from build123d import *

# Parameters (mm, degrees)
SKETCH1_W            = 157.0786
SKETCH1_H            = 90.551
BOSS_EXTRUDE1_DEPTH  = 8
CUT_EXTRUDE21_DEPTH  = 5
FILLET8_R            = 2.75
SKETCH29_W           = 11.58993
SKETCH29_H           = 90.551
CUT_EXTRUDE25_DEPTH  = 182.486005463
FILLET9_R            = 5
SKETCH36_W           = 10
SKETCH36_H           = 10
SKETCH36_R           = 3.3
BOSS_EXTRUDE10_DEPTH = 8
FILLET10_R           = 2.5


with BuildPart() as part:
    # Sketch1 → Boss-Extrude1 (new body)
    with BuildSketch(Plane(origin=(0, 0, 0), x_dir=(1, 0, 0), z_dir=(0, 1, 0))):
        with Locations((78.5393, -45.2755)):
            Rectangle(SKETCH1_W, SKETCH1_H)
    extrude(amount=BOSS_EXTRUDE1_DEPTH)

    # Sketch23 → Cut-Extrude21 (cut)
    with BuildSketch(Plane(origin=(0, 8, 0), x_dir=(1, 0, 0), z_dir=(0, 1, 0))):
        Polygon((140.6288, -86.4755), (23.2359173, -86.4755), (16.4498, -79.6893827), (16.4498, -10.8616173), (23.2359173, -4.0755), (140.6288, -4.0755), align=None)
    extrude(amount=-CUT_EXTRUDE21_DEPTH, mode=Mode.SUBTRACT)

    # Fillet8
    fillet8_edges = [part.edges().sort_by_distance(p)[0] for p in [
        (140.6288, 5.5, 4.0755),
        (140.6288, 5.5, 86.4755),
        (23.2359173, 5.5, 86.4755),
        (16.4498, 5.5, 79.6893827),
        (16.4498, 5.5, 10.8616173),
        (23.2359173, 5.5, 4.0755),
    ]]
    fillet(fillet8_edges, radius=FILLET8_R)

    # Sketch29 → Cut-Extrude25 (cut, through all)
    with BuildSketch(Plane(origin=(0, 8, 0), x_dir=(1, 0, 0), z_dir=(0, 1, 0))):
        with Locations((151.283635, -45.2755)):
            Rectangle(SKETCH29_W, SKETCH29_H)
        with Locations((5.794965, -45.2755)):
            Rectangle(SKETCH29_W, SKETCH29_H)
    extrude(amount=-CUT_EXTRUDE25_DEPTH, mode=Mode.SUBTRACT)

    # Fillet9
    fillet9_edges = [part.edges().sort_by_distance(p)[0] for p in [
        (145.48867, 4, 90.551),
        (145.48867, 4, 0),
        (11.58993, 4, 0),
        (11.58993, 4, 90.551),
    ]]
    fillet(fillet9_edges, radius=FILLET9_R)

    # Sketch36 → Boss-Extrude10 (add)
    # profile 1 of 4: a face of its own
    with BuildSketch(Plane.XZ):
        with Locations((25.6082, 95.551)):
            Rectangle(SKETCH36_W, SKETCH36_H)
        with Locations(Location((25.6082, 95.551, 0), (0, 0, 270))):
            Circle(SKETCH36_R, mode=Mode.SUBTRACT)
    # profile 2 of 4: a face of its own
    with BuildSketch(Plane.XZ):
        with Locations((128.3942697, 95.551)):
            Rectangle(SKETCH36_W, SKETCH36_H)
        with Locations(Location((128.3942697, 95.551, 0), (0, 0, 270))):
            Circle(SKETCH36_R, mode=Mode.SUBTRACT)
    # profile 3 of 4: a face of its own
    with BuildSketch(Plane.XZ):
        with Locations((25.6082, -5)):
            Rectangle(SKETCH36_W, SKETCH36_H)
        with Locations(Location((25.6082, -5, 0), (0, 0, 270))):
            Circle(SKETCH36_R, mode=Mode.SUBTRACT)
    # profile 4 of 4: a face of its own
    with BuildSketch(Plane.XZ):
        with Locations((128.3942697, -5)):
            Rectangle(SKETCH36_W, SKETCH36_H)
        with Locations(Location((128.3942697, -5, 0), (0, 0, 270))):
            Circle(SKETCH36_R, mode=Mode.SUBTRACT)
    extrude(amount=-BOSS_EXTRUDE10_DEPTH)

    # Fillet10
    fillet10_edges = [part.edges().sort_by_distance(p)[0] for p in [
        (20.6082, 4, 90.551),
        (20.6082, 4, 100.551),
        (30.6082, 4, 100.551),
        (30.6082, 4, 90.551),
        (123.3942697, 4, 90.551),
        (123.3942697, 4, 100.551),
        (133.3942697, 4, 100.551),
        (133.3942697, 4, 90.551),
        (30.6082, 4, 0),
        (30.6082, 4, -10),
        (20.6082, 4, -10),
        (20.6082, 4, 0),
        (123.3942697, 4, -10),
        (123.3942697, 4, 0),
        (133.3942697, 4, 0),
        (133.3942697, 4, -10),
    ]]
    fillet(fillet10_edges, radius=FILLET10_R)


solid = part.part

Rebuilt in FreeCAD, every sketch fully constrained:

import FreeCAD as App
import Part
import Sketcher
from FreeCAD import Vector


def edges_at(feature, points):
    """Names of the edges that pass closest to the given points."""
    edges = feature.Shape.Edges
    near = lambda p: min(range(len(edges)), key=lambda i: edges[i].distToShape(Part.Vertex(*p))[0])
    return sorted({f"Edge{near(p) + 1}" for p in points})


def add_polygon(sketch, points):
    """Adds a closed chain of lines whose ends are joined by coincident constraints."""
    first, n = sketch.GeometryCount, len(points)
    for a, b in zip(points, points[1:] + points[:1]):
        sketch.addGeometry(Part.LineSegment(App.Vector(*a, 0), App.Vector(*b, 0)), False)
    for i in range(n):
        sketch.addConstraint(Sketcher.Constraint("Coincident", first + i, 2, first + (i + 1) % n, 1))

doc = App.newDocument("Part")
body = doc.addObject("PartDesign::Body", "Body")

# Sketch on XZ plane
sketch1 = doc.addObject("Sketcher::SketchObject", "Sketch")
body.addObject(sketch1)
sketch1.AttachmentSupport = (doc.XZ_Plane, [""])
sketch1.MapMode = "FlatFace"
add_polygon(sketch1, [(0, 0), (0, 91), (157, 91), (157, 0)])  # lines 0-3
sketch1.addConstraint([
    Sketcher.Constraint("Vertical", 0),
    Sketcher.Constraint("Horizontal", 1),
    Sketcher.Constraint("Vertical", 2),
    Sketcher.Constraint("Horizontal", 3),
    Sketcher.Constraint("Coincident", 3, 2, -1, 1),
    Sketcher.Constraint("DistanceY", 0, 1, 0, 2, 90.551),
    Sketcher.Constraint("DistanceX", 1, 1, 1, 2, 157.0786),
])
pad1 = doc.addObject("PartDesign::Pad", "Pad")
body.addObject(pad1)
pad1.Profile = sketch1
pad1.Length = 8
pad1.Reversed = True

# Sketch on XZ plane
sketch2 = doc.addObject("Sketcher::SketchObject", "Sketch001")
body.addObject(sketch2)
sketch2.AttachmentSupport = (doc.XZ_Plane, [""])
sketch2.MapMode = "FlatFace"
sketch2.AttachmentOffset = App.Placement(Vector(0, 0, -8), App.Rotation())
add_polygon(sketch2, [(23, 86), (141, 86), (141, 4), (23, 4), (16, 11), (16, 80)])  # lines 0-5
sketch2.addConstraint([
    Sketcher.Constraint("Horizontal", 0),
    Sketcher.Constraint("Vertical", 1),
    Sketcher.Constraint("Horizontal", 2),
    Sketcher.Constraint("Vertical", 4),
    Sketcher.Constraint("Perpendicular", 3, 5),
    Sketcher.Constraint("Vertical", 2, 2, 5, 2),
    Sketcher.Constraint("Equal", 3, 5),
    Sketcher.Constraint("DistanceY", 1, 2, 1, 1, 82.4),
    Sketcher.Constraint("DistanceX", 3, 2, 1, 2, 124.179),
    Sketcher.Constraint("DistanceX", -1, 1, 0, 2, 140.6288),
    Sketcher.Constraint("DistanceY", -1, 1, 0, 2, 86.4755),
    Sketcher.Constraint("Distance", 3, 9.597019),
])
pocket1 = doc.addObject("PartDesign::Pocket", "Pocket")
body.addObject(pocket1)
pocket1.Profile = sketch2
pocket1.Length = 5
pocket1.Reversed = True
doc.recompute()

fillet = doc.addObject("PartDesign::Fillet", "Fillet")
body.addObject(fillet)
fillet.Base = (pocket1, edges_at(pocket1, [
    (140.629, 5.5, 4.075),
    (140.629, 5.5, 86.475),
    (23.236, 5.5, 86.475),
    (16.45, 5.5, 79.689),
    (16.45, 5.5, 10.862),
    (23.236, 5.5, 4.075),
]))
fillet.Radius = 2.75

# Sketch on XZ plane
sketch3 = doc.addObject("Sketcher::SketchObject", "Sketch002")
body.addObject(sketch3)
sketch3.AttachmentSupport = (doc.XZ_Plane, [""])
sketch3.MapMode = "FlatFace"
sketch3.AttachmentOffset = App.Placement(Vector(0, 0, -8), App.Rotation())
add_polygon(sketch3, [(145, 0), (145, 91), (157, 91), (157, 0)])  # lines 0-3
add_polygon(sketch3, [(0, 0), (0, 91), (12, 91), (12, 0)])  # lines 4-7
sketch3.addConstraint([
    Sketcher.Constraint("Vertical", 0),
    Sketcher.Constraint("Horizontal", 1),
    Sketcher.Constraint("Vertical", 2),
    Sketcher.Constraint("Horizontal", 3),
    Sketcher.Constraint("Vertical", 4),
    Sketcher.Constraint("Horizontal", 5),
    Sketcher.Constraint("Vertical", 6),
    Sketcher.Constraint("Horizontal", 7),
    Sketcher.Constraint("Coincident", 7, 2, -1, 1),
    Sketcher.Constraint("PointOnObject", 2, 2, -1),
    Sketcher.Constraint("Horizontal", 1, 2, 4, 2),
    Sketcher.Constraint("Equal", 3, 5),
    Sketcher.Constraint("DistanceY", 0, 1, 0, 2, 90.551),
    Sketcher.Constraint("DistanceX", 1, 1, 1, 2, 11.58993),
    Sketcher.Constraint("DistanceX", -1, 1, 1, 2, 157.0786),
])
pocket2 = doc.addObject("PartDesign::Pocket", "Pocket001")
body.addObject(pocket2)
pocket2.Profile = sketch3
pocket2.Type = "ThroughAll"
pocket2.Reversed = True
doc.recompute()

fillet2 = doc.addObject("PartDesign::Fillet", "Fillet001")
body.addObject(fillet2)
fillet2.Base = (pocket2, edges_at(pocket2, [
    (145.489, 4, 90.551),
    (145.489, 4, 0),
    (11.59, 4, 0),
    (11.59, 4, 90.551),
]))
fillet2.Radius = 5

# Sketch on XZ plane
sketch4 = doc.addObject("Sketcher::SketchObject", "Sketch003")
body.addObject(sketch4)
sketch4.AttachmentSupport = (doc.XZ_Plane, [""])
sketch4.MapMode = "FlatFace"
add_polygon(sketch4, [(20.6, 100.6), (20.6, 90.6), (30.6, 90.6), (30.6, 100.6)])  # lines 0-3
sketch4.addGeometry(Part.Circle(Vector(25.6, 95.6, 0), Vector(0, 0, 1), 3.3), False)  # 4
add_polygon(sketch4, [(123.4, 100.6), (123.4, 90.6), (133.4, 90.6), (133.4, 100.6)])  # lines 5-8
sketch4.addGeometry(Part.Circle(Vector(128.4, 95.6, 0), Vector(0, 0, 1), 3.3), False)  # 9
add_polygon(sketch4, [(20.6, 0), (20.6, -10), (30.6, -10), (30.6, 0)])  # lines 10-13
sketch4.addGeometry(Part.Circle(Vector(25.6, -5, 0), Vector(0, 0, 1), 3.3), False)  # 14
add_polygon(sketch4, [(123.4, 0), (123.4, -10), (133.4, -10), (133.4, 0)])  # lines 15-18
sketch4.addGeometry(Part.Circle(Vector(128.4, -5, 0), Vector(0, 0, 1), 3.3), False)  # 19
sketch4.addConstraint([
    Sketcher.Constraint("Vertical", 0),
    Sketcher.Constraint("Horizontal", 1),
    Sketcher.Constraint("Vertical", 2),
    Sketcher.Constraint("Horizontal", 3),
    Sketcher.Constraint("Vertical", 5),
    Sketcher.Constraint("Horizontal", 6),
    Sketcher.Constraint("Vertical", 7),
    Sketcher.Constraint("Horizontal", 8),
    Sketcher.Constraint("Vertical", 10),
    Sketcher.Constraint("Horizontal", 11),
    Sketcher.Constraint("Vertical", 12),
    Sketcher.Constraint("Horizontal", 13),
    Sketcher.Constraint("Vertical", 15),
    Sketcher.Constraint("Horizontal", 16),
    Sketcher.Constraint("Vertical", 17),
    Sketcher.Constraint("Horizontal", 18),
    Sketcher.Constraint("Equal", 4, 9),
    Sketcher.Constraint("Equal", 9, 14),
    Sketcher.Constraint("Equal", 14, 19),
    Sketcher.Constraint("PointOnObject", 12, 2, -1),
    Sketcher.Constraint("PointOnObject", 17, 2, -1),
    Sketcher.Constraint("Horizontal", 4, 3, 9, 3),
    Sketcher.Constraint("Horizontal", 14, 3, 19, 3),
    Sketcher.Constraint("Horizontal", 1, 2, 5, 2),
    Sketcher.Constraint("Horizontal", 3, 2, 7, 2),
    Sketcher.Constraint("Horizontal", 11, 2, 15, 2),
    Sketcher.Constraint("Vertical", 4, 3, 14, 3),
    Sketcher.Constraint("Vertical", 9, 3, 19, 3),
    Sketcher.Constraint("Vertical", 3, 2, 10, 2),
    Sketcher.Constraint("Vertical", 2, 2, 11, 2),
    Sketcher.Constraint("Vertical", 8, 2, 15, 2),
    Sketcher.Constraint("Vertical", 7, 2, 16, 2),
    Sketcher.Constraint("Equal", 3, 6),
    Sketcher.Constraint("Equal", 18, 0),
    Sketcher.Constraint("Equal", 7, 10),
    Sketcher.Constraint("Diameter", 4, 6.6),
    Sketcher.Constraint("DistanceX", 1, 1, 1, 2, 10.0),
    Sketcher.Constraint("DistanceY", 14, 3, -1, 1, 5.0),
    Sketcher.Constraint("DistanceX", 0, 2, 4, 3, 5.0),
    Sketcher.Constraint("DistanceY", 0, 2, 4, 3, 5.0),
    Sketcher.Constraint("DistanceX", 5, 2, 9, 3, 5.0),
    Sketcher.Constraint("DistanceY", -1, 1, 4, 3, 95.551),
    Sketcher.Constraint("DistanceX", -1, 1, 4, 3, 25.6082),
    Sketcher.Constraint("DistanceX", -1, 1, 9, 3, 128.39427),
])
pad2 = doc.addObject("PartDesign::Pad", "Pad001")
body.addObject(pad2)
pad2.Profile = sketch4
pad2.Length = 8
pad2.Reversed = True
doc.recompute()

fillet3 = doc.addObject("PartDesign::Fillet", "Fillet002")
body.addObject(fillet3)
fillet3.Base = (pad2, edges_at(pad2, [
    (20.608, 4, 90.551),
    (20.608, 4, 100.551),
    (30.608, 4, 100.551),
    (30.608, 4, 90.551),
    (123.394, 4, 90.551),
    (123.394, 4, 100.551),
    (133.394, 4, 100.551),
    (133.394, 4, 90.551),
    (30.608, 4, 0),
    (30.608, 4, -10),
    (20.608, 4, -10),
    (20.608, 4, 0),
    (123.394, 4, -10),
    (123.394, 4, 0),
    (133.394, 4, 0),
    (133.394, 4, -10),
]))
fillet3.Radius = 2.5

doc.recompute()
